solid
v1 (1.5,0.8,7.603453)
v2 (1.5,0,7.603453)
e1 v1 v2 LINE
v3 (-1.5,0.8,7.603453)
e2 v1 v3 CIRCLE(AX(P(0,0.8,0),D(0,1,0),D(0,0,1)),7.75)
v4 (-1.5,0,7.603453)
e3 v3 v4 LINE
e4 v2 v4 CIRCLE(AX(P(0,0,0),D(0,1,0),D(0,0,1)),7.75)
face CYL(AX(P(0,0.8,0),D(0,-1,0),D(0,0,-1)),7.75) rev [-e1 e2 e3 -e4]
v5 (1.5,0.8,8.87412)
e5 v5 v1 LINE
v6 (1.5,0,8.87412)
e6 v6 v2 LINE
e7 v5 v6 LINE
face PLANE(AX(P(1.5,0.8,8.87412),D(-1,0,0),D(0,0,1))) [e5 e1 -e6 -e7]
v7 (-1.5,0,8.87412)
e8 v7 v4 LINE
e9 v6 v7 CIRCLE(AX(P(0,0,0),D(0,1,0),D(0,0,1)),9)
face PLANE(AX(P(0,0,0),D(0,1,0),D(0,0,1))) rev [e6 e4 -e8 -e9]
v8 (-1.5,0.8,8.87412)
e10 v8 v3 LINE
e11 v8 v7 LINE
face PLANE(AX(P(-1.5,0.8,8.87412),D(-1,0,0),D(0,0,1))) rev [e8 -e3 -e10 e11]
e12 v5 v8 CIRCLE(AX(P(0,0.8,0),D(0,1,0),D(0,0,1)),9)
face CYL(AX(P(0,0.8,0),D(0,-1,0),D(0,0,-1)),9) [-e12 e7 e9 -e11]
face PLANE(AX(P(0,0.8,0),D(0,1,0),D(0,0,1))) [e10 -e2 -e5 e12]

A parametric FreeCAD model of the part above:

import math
import FreeCAD as App
import Part
import Sketcher

V = App.Vector
Q = App.Units.Quantity

doc = App.newDocument("Part")
params = doc.addObject("Spreadsheet::Sheet", "Params")
for row, (alias, value) in enumerate([
    ("sketch1_radius", "9 mm"),
    ("sketch1_radius2", "7.75 mm"),
    ("pad1_length", "0.8 mm"),
], start=1):
    params.set(f"A{row}", alias)
    params.set(f"B{row}", "=" + value)
    params.setAlias(f"B{row}", alias)

body = doc.addObject("PartDesign::Body", "Body")

# Sketch on XZ plane
sketch1 = body.newObject("Sketcher::SketchObject", "Sketch")
sketch1.AttachmentSupport = (doc.getObject("XZ_Plane"), [""])
sketch1.MapMode = "FlatFace"
sketch1.addGeometry([
    Part.LineSegment(V(1.5, 7.6, 0), V(1.5, 8.9, 0)),
    Part.ArcOfCircle(Part.Circle(V(0, 0, 0), V(0, 0, 1), 9), math.radians(100), math.radians(440)),
    Part.LineSegment(V(-1.5, 8.9, 0), V(-1.5, 7.6, 0)),
    Part.ArcOfCircle(Part.Circle(V(0, 0, 0), V(0, 0, 1), 7.8), math.radians(101), math.radians(439)),
], False)
sketch1.addConstraint([
    Sketcher.Constraint("Coincident", 0, 2, 1, 2),
    Sketcher.Constraint("Coincident", 1, 1, 2, 1),
    Sketcher.Constraint("Coincident", 2, 2, 3, 1),
    Sketcher.Constraint("Coincident", 3, 2, 0, 1),
    Sketcher.Constraint("Vertical", 0),
    Sketcher.Constraint("Vertical", 2),
    Sketcher.Constraint("Coincident", 1, 3, -1, 1),
    Sketcher.Constraint("Coincident", 3, 3, -1, 1),
    Sketcher.Constraint("Horizontal", 0, 2, 1, 1),
    Sketcher.Constraint("Radius", 1, Q("9 mm")),
    Sketcher.Constraint("Radius", 3, Q("7.75 mm")),
    Sketcher.Constraint("DistanceX", 1, 1, 0, 2, Q("3 mm")),
])
sketch1.setExpression("Constraints[9]", "Params.sketch1_radius")
sketch1.setExpression("Constraints[10]", "Params.sketch1_radius2")
pad1 = body.newObject("PartDesign::Pad", "Pad")
pad1.Profile = sketch1
pad1.setExpression("Length", "Params.pad1_length")
pad1.Reversed = True

doc.recompute()
